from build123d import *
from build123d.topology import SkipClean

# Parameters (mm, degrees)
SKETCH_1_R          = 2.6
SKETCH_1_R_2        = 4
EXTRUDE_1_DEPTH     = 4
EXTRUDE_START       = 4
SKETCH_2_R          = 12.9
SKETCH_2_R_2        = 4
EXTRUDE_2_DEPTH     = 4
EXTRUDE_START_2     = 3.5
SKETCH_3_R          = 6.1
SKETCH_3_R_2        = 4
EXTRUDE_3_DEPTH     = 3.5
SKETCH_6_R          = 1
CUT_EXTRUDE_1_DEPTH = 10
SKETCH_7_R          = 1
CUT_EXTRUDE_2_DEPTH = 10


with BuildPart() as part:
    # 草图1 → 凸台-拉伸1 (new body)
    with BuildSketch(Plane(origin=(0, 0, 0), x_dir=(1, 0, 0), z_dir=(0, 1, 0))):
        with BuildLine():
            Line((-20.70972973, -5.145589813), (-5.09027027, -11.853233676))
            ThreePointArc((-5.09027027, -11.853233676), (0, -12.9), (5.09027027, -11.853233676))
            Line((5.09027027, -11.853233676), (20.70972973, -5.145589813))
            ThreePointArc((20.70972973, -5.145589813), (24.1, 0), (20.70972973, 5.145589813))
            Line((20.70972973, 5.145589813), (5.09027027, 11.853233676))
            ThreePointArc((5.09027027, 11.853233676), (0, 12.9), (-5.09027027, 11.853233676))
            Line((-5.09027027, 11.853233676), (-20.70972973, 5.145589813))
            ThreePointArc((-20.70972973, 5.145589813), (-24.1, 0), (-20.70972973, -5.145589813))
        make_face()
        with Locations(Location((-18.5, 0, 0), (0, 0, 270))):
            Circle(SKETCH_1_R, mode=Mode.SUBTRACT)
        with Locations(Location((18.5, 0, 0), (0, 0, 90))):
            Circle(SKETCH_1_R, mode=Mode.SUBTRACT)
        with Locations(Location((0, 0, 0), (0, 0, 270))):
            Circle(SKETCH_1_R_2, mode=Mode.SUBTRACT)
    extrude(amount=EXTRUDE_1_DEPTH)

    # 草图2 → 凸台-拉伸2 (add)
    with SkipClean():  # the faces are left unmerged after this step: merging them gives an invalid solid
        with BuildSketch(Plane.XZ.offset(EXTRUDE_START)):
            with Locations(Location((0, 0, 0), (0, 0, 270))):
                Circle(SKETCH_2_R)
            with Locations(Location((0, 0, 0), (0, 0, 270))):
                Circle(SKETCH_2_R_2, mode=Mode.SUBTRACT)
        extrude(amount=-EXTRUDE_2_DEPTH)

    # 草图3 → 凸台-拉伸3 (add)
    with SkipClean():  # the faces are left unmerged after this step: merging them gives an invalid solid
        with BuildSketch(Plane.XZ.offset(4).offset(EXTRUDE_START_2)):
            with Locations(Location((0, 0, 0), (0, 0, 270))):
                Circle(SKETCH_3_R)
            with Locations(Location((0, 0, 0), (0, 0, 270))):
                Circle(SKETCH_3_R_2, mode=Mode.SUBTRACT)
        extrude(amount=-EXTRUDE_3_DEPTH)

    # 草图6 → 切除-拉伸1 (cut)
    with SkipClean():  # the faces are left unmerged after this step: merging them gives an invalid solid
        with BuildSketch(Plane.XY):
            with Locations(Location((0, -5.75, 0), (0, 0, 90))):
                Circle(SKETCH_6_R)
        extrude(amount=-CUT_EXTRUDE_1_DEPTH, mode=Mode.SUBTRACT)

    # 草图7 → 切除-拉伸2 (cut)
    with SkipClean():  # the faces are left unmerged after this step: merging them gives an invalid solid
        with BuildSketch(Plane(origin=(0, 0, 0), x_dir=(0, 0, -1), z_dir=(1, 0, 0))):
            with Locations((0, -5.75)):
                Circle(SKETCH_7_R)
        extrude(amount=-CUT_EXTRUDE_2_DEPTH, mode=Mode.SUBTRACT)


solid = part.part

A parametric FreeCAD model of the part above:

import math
import FreeCAD as App
import Part
import Sketcher
from FreeCAD import Vector
Q = App.Units.Quantity

doc = App.newDocument("Part")
body = doc.addObject("PartDesign::Body", "Body")

# Sketch on XZ plane
sketch1 = body.newObject("Sketcher::SketchObject", "Sketch")
sketch1.AttachmentSupport = (doc.getObject("XZ_Plane"), [""])
sketch1.MapMode = "FlatFace"
sketch1.addGeometry(Part.LineSegment(Vector(-20.7, 5.1, 0), Vector(-5.1, 11.9, 0)), False)
sketch1.addGeometry(Part.ArcOfCircle(Part.Circle(Vector(0, 0, 0), Vector(0, 0, 1), 12.9), math.radians(67), math.radians(113)), False)
sketch1.addGeometry(Part.LineSegment(Vector(5.1, 11.9, 0), Vector(20.7, 5.1, 0)), False)
sketch1.addGeometry(Part.ArcOfCircle(Part.Circle(Vector(18.5, 0, 0), Vector(0, 0, 1), 5.6), math.radians(-67), math.radians(67)), False)
sketch1.addGeometry(Part.LineSegment(Vector(20.7, -5.1, 0), Vector(5.1, -11.9, 0)), False)
sketch1.addGeometry(Part.ArcOfCircle(Part.Circle(Vector(0, 0, 0), Vector(0, 0, 1), 12.9), math.radians(-113), math.radians(-67)), False)
sketch1.addGeometry(Part.LineSegment(Vector(-5.1, -11.9, 0), Vector(-20.7, -5.1, 0)), False)
sketch1.addGeometry(Part.ArcOfCircle(Part.Circle(Vector(-18.5, 0, 0), Vector(0, 0, 1), 5.6), math.radians(113), math.radians(247)), False)
sketch1.addGeometry(Part.Circle(Vector(-18.5, 0, 0), Vector(0, 0, 1), 2.6), False)
sketch1.addGeometry(Part.Circle(Vector(0, 0, 0), Vector(0, 0, 1), 4), False)
sketch1.addGeometry(Part.Circle(Vector(18.5, 0, 0), Vector(0, 0, 1), 2.6), False)
sketch1.addConstraint(Sketcher.Constraint("Tangent", 0, 2, 1, 2))
sketch1.addConstraint(Sketcher.Constraint("Tangent", 1, 1, 2, 1))
sketch1.addConstraint(Sketcher.Constraint("Tangent", 2, 2, 3, 2))
sketch1.addConstraint(Sketcher.Constraint("Tangent", 3, 1, 4, 1))
sketch1.addConstraint(Sketcher.Constraint("Tangent", 4, 2, 5, 2))
sketch1.addConstraint(Sketcher.Constraint("Tangent", 5, 1, 6, 1))
sketch1.addConstraint(Sketcher.Constraint("Tangent", 6, 2, 7, 2))
sketch1.addConstraint(Sketcher.Constraint("Tangent", 7, 1, 0, 1))
sketch1.addConstraint(Sketcher.Constraint("Coincident", 1, 3, -1, 1))
sketch1.addConstraint(Sketcher.Constraint("Coincident", 5, 3, -1, 1))
sketch1.addConstraint(Sketcher.Constraint("Coincident", 9, 3, -1, 1))
sketch1.addConstraint(Sketcher.Constraint("Coincident", 8, 3, 7, 3))
sketch1.addConstraint(Sketcher.Constraint("Coincident", 10, 3, 3, 3))
sketch1.addConstraint(Sketcher.Constraint("Equal", 1, 5))
sketch1.addConstraint(Sketcher.Constraint("Equal", 3, 7))
sketch1.addConstraint(Sketcher.Constraint("Equal", 8, 10))
sketch1.addConstraint(Sketcher.Constraint("Symmetric", 3, 3, 7, 3, -1, 1))
sketch1.addConstraint(Sketcher.Constraint("PointOnObject", 3, 3, -1))
sketch1.addConstraint(Sketcher.Constraint("Diameter", 9, Q("8 mm")))
sketch1.addConstraint(Sketcher.Constraint("Diameter", 8, Q("5.2 mm")))
sketch1.addConstraint(Sketcher.Constraint("Radius", 1, Q("12.9 mm")))
sketch1.addConstraint(Sketcher.Constraint("Radius", 3, Q("5.6 mm")))
sketch1.addConstraint(Sketcher.Constraint("DistanceX", 7, 3, 3, 3, Q("37 mm")))
pad1 = body.newObject("PartDesign::Pad", "Pad")
pad1.Profile = sketch1
pad1.Length = 4
pad1.Reversed = True

# Sketch on XZ plane
sketch2 = body.newObject("Sketcher::SketchObject", "Sketch001")
sketch2.AttachmentSupport = (doc.getObject("XZ_Plane"), [""])
sketch2.MapMode = "FlatFace"
sketch2.AttachmentOffset = App.Placement(Vector(0, 0, 4), App.Rotation())
sketch2.addGeometry(Part.Circle(Vector(0, 0, 0), Vector(0, 0, 1), 12.9), False)
sketch2.addGeometry(Part.Circle(Vector(0, 0, 0), Vector(0, 0, 1), 4), False)
sketch2.addConstraint(Sketcher.Constraint("Coincident", 0, 3, -1, 1))
sketch2.addConstraint(Sketcher.Constraint("Coincident", 1, 3, -1, 1))
sketch2.addConstraint(Sketcher.Constraint("Diameter", 1, Q("8 mm")))
sketch2.addConstraint(Sketcher.Constraint("Diameter", 0, Q("25.8 mm")))
pad2 = body.newObject("PartDesign::Pad", "Pad001")
pad2.Profile = sketch2
pad2.Length = 4
pad2.Reversed = True

# Sketch on XZ plane
sketch3 = body.newObject("Sketcher::SketchObject", "Sketch002")
sketch3.AttachmentSupport = (doc.getObject("XZ_Plane"), [""])
sketch3.MapMode = "FlatFace"
sketch3.AttachmentOffset = App.Placement(Vector(0, 0, 7.5), App.Rotation())
sketch3.addGeometry(Part.Circle(Vector(0, 0, 0), Vector(0, 0, 1), 6.1), False)
sketch3.addGeometry(Part.Circle(Vector(0, 0, 0), Vector(0, 0, 1), 4), False)
sketch3.addConstraint(Sketcher.Constraint("Coincident", 0, 3, -1, 1))
sketch3.addConstraint(Sketcher.Constraint("Coincident", 1, 3, -1, 1))
sketch3.addConstraint(Sketcher.Constraint("Diameter", 1, Q("8 mm")))
sketch3.addConstraint(Sketcher.Constraint("Diameter", 0, Q("12.2 mm")))
pad3 = body.newObject("PartDesign::Pad", "Pad002")
pad3.Profile = sketch3
pad3.Length = 3.5
pad3.Reversed = True

# Sketch on XY plane
sketch4 = body.newObject("Sketcher::SketchObject", "Sketch003")
sketch4.AttachmentSupport = (doc.getObject("XY_Plane"), [""])
sketch4.MapMode = "FlatFace"
sketch4.addGeometry(Part.Circle(Vector(0, -5.8, 0), Vector(0, 0, 1), 1), False)
sketch4.addConstraint(Sketcher.Constraint("PointOnObject", 0, 3, -2))
sketch4.addConstraint(Sketcher.Constraint("Diameter", 0, Q("2 mm")))
sketch4.addConstraint(Sketcher.Constraint("DistanceY", 0, 3, -1, 1, Q("5.75 mm")))
pocket1 = body.newObject("PartDesign::Pocket", "Pocket")
pocket1.Profile = sketch4
pocket1.Length = 10

# Sketch on YZ plane
sketch5 = body.newObject("Sketcher::SketchObject", "Sketch004")
sketch5.AttachmentSupport = (doc.getObject("YZ_Plane"), [""])
sketch5.MapMode = "FlatFace"
sketch5.addGeometry(Part.Circle(Vector(-5.8, 0, 0), Vector(0, 0, 1), 1), False)
sketch5.addConstraint(Sketcher.Constraint("PointOnObject", 0, 3, -1))
sketch5.addConstraint(Sketcher.Constraint("Diameter", 0, Q("2 mm")))
sketch5.addConstraint(Sketcher.Constraint("DistanceX", 0, 3, -1, 1, Q("5.75 mm")))
pocket2 = body.newObject("PartDesign::Pocket", "Pocket001")
pocket2.Profile = sketch5
pocket2.Length = 10

doc.recompute()
